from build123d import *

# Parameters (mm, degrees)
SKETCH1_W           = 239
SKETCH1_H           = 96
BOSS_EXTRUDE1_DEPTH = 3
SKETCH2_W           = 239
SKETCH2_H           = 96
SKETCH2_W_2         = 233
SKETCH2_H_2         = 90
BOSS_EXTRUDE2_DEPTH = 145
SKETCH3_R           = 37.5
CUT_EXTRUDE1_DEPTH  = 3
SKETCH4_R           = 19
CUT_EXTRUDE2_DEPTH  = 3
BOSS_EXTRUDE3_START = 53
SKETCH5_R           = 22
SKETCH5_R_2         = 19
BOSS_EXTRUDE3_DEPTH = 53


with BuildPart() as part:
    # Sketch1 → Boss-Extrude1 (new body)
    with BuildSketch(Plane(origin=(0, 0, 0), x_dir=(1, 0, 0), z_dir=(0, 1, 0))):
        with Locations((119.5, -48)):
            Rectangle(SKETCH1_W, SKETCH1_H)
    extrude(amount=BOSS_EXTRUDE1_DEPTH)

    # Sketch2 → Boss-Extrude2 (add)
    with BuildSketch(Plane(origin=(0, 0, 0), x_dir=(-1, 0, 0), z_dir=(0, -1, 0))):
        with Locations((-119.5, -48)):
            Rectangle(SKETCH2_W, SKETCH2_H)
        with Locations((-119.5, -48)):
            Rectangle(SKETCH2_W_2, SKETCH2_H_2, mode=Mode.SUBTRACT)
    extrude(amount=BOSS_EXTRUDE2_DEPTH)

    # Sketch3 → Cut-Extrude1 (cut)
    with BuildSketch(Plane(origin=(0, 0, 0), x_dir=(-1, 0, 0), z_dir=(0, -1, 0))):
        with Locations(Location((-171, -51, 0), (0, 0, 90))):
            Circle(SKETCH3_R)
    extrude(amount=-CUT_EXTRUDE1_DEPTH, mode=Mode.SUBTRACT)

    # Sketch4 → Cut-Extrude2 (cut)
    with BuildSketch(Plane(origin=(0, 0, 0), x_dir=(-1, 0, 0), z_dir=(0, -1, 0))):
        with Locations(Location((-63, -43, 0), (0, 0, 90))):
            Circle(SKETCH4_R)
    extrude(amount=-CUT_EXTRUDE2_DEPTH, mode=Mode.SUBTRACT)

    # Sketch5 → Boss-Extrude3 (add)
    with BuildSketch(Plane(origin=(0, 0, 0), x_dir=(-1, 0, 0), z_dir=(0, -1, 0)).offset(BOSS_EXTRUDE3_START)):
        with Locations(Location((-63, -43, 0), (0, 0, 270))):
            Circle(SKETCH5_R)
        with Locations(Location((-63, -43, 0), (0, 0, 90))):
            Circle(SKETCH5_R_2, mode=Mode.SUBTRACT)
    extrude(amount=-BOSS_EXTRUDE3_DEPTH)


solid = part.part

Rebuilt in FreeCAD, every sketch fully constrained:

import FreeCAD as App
import Part
import Sketcher

V = App.Vector
Q = App.Units.Quantity

doc = App.newDocument("Part")
params = doc.addObject("Spreadsheet::Sheet", "Params")
for row, (alias, value) in enumerate([
    ("sketch1_width", "239 mm"),
    ("sketch1_height", "96 mm"),
    ("pad1_length", "3 mm"),
    ("sketch2_width", "239 mm"),
    ("sketch2_width2", "233 mm"),
    ("sketch2_height", "96 mm"),
    ("sketch2_height2", "90 mm"),
    ("pad2_length", "145 mm"),
    ("sketch3_diameter", "75 mm"),
    ("pocket1_length", "3 mm"),
    ("sketch4_diameter", "38 mm"),
    ("pocket2_length", "3 mm"),
    ("sketch5_diameter", "44 mm"),
    ("sketch5_diameter2", "38 mm"),
    ("pad3_length", "53 mm"),
], start=1):
    params.set(f"A{row}", alias)
    params.set(f"B{row}", "=" + value)
    params.setAlias(f"B{row}", alias)

body = doc.addObject("PartDesign::Body", "Body")

sketch1 = body.newObject("Sketcher::SketchObject", "Sketch")
sketch1.AttachmentSupport = (doc.getObject("XZ_Plane"), [""])
sketch1.MapMode = "FlatFace"
sketch1.addGeometry([
    Part.LineSegment(V(0, 0, 0), V(0, 96, 0)),
    Part.LineSegment(V(0, 96, 0), V(239, 96, 0)),
    Part.LineSegment(V(239, 96, 0), V(239, 0, 0)),
    Part.LineSegment(V(239, 0, 0), V(0, 0, 0)),
], False)
sketch1.addConstraint([
    Sketcher.Constraint("Coincident", 0, 2, 1, 1),
    Sketcher.Constraint("Coincident", 1, 2, 2, 1),
    Sketcher.Constraint("Coincident", 2, 2, 3, 1),
    Sketcher.Constraint("Coincident", 3, 2, 0, 1),
    Sketcher.Constraint("Vertical", 0),
    Sketcher.Constraint("Horizontal", 1),
    Sketcher.Constraint("Vertical", 2),
    Sketcher.Constraint("Horizontal", 3),
    Sketcher.Constraint("Coincident", 3, 2, -1, 1),
    Sketcher.Constraint("DistanceX", 1, 1, 1, 2, Q("239 mm")),
    Sketcher.Constraint("DistanceY", 0, 1, 0, 2, Q("96 mm")),
])
sketch1.setExpression("Constraints[9]", "Params.sketch1_width")
sketch1.setExpression("Constraints[10]", "Params.sketch1_height")
pad1 = body.newObject("PartDesign::Pad", "Pad")
pad1.Profile = sketch1
pad1.setExpression("Length", "Params.pad1_length")
pad1.Reversed = True

sketch2 = body.newObject("Sketcher::SketchObject", "Sketch001")
sketch2.AttachmentSupport = (doc.getObject("XZ_Plane"), [""])
sketch2.MapMode = "FlatFace"
sketch2.addGeometry([
    Part.LineSegment(V(239, 0, 0), V(239, 96, 0)),
    Part.LineSegment(V(239, 96, 0), V(0, 96, 0)),
    Part.LineSegment(V(0, 96, 0), V(0, 0, 0)),
    Part.LineSegment(V(0, 0, 0), V(239, 0, 0)),
    Part.LineSegment(V(3, 93, 0), V(236, 93, 0)),
    Part.LineSegment(V(236, 93, 0), V(236, 3, 0)),
    Part.LineSegment(V(236, 3, 0), V(3, 3, 0)),
    Part.LineSegment(V(3, 3, 0), V(3, 93, 0)),
], False)
sketch2.addConstraint([
    Sketcher.Constraint("Coincident", 0, 2, 1, 1),
    Sketcher.Constraint("Coincident", 1, 2, 2, 1),
    Sketcher.Constraint("Coincident", 2, 2, 3, 1),
    Sketcher.Constraint("Coincident", 3, 2, 0, 1),
    Sketcher.Constraint("Coincident", 4, 2, 5, 1),
    Sketcher.Constraint("Coincident", 5, 2, 6, 1),
    Sketcher.Constraint("Coincident", 6, 2, 7, 1),
    Sketcher.Constraint("Coincident", 7, 2, 4, 1),
    Sketcher.Constraint("Vertical", 0),
    Sketcher.Constraint("Horizontal", 1),
    Sketcher.Constraint("Vertical", 2),
    Sketcher.Constraint("Horizontal", 3),
    Sketcher.Constraint("Horizontal", 4),
    Sketcher.Constraint("Vertical", 5),
    Sketcher.Constraint("Horizontal", 6),
    Sketcher.Constraint("Vertical", 7),
    Sketcher.Constraint("Coincident", 2, 2, -1, 1),
    Sketcher.Constraint("DistanceX", 1, 2, 1, 1, Q("239 mm")),
    Sketcher.Constraint("DistanceX", 4, 1, 4, 2, Q("233 mm")),
    Sketcher.Constraint("DistanceY", 0, 1, 0, 2, Q("96 mm")),
    Sketcher.Constraint("DistanceY", 5, 2, 5, 1, Q("90 mm")),
    Sketcher.Constraint("DistanceX", -1, 1, 4, 2, Q("236 mm")),
    Sketcher.Constraint("DistanceY", -1, 1, 4, 2, Q("93 mm")),
])
sketch2.setExpression("Constraints[17]", "Params.sketch2_width")
sketch2.setExpression("Constraints[18]", "Params.sketch2_width2")
sketch2.setExpression("Constraints[19]", "Params.sketch2_height")
sketch2.setExpression("Constraints[20]", "Params.sketch2_height2")
pad2 = body.newObject("PartDesign::Pad", "Pad001")
pad2.Profile = sketch2
pad2.setExpression("Length", "Params.pad2_length")

sketch3 = body.newObject("Sketcher::SketchObject", "Sketch002")
sketch3.AttachmentSupport = (doc.getObject("XZ_Plane"), [""])
sketch3.MapMode = "FlatFace"
sketch3.addGeometry(Part.Circle(V(171, 51, 0), V(0, 0, 1), 38), False)
sketch3.addConstraint([
    Sketcher.Constraint("Diameter", 0, Q("75 mm")),
    Sketcher.Constraint("DistanceX", -1, 1, 0, 3, Q("171 mm")),
    Sketcher.Constraint("DistanceY", -1, 1, 0, 3, Q("51 mm")),
])
sketch3.setExpression("Constraints[0]", "Params.sketch3_diameter")
pocket1 = body.newObject("PartDesign::Pocket", "Pocket")
pocket1.Profile = sketch3
pocket1.setExpression("Length", "Params.pocket1_length")

sketch4 = body.newObject("Sketcher::SketchObject", "Sketch003")
sketch4.AttachmentSupport = (doc.getObject("XZ_Plane"), [""])
sketch4.MapMode = "FlatFace"
sketch4.addGeometry(Part.Circle(V(63, 43, 0), V(0, 0, 1), 19), False)
sketch4.addConstraint([
    Sketcher.Constraint("Diameter", 0, Q("38 mm")),
    Sketcher.Constraint("DistanceX", -1, 1, 0, 3, Q("63 mm")),
    Sketcher.Constraint("DistanceY", -1, 1, 0, 3, Q("43 mm")),
])
sketch4.setExpression("Constraints[0]", "Params.sketch4_diameter")
pocket2 = body.newObject("PartDesign::Pocket", "Pocket001")
pocket2.Profile = sketch4
pocket2.setExpression("Length", "Params.pocket2_length")

sketch5 = body.newObject("Sketcher::SketchObject", "Sketch004")
sketch5.AttachmentSupport = (doc.getObject("XZ_Plane"), [""])
sketch5.MapMode = "FlatFace"
sketch5.AttachmentOffset = App.Placement(V(0, 0, 53), App.Rotation())
sketch5.addGeometry([
    Part.Circle(V(63, 43, 0), V(0, 0, 1), 22),
    Part.Circle(V(63, 43, 0), V(0, 0, 1), 19),
], False)
sketch5.addConstraint([
    Sketcher.Constraint("Coincident", 1, 3, 0, 3),
    Sketcher.Constraint("Diameter", 0, Q("44 mm")),
    Sketcher.Constraint("Diameter", 1, Q("38 mm")),
    Sketcher.Constraint("DistanceX", -1, 1, 0, 3, Q("63 mm")),
    Sketcher.Constraint("DistanceY", -1, 1, 0, 3, Q("43 mm")),
])
sketch5.setExpression("Constraints[1]", "Params.sketch5_diameter")
sketch5.setExpression("Constraints[2]", "Params.sketch5_diameter2")
pad3 = body.newObject("PartDesign::Pad", "Pad002")
pad3.Profile = sketch5
pad3.setExpression("Length", "Params.pad3_length")
pad3.Reversed = True

doc.recompute()
